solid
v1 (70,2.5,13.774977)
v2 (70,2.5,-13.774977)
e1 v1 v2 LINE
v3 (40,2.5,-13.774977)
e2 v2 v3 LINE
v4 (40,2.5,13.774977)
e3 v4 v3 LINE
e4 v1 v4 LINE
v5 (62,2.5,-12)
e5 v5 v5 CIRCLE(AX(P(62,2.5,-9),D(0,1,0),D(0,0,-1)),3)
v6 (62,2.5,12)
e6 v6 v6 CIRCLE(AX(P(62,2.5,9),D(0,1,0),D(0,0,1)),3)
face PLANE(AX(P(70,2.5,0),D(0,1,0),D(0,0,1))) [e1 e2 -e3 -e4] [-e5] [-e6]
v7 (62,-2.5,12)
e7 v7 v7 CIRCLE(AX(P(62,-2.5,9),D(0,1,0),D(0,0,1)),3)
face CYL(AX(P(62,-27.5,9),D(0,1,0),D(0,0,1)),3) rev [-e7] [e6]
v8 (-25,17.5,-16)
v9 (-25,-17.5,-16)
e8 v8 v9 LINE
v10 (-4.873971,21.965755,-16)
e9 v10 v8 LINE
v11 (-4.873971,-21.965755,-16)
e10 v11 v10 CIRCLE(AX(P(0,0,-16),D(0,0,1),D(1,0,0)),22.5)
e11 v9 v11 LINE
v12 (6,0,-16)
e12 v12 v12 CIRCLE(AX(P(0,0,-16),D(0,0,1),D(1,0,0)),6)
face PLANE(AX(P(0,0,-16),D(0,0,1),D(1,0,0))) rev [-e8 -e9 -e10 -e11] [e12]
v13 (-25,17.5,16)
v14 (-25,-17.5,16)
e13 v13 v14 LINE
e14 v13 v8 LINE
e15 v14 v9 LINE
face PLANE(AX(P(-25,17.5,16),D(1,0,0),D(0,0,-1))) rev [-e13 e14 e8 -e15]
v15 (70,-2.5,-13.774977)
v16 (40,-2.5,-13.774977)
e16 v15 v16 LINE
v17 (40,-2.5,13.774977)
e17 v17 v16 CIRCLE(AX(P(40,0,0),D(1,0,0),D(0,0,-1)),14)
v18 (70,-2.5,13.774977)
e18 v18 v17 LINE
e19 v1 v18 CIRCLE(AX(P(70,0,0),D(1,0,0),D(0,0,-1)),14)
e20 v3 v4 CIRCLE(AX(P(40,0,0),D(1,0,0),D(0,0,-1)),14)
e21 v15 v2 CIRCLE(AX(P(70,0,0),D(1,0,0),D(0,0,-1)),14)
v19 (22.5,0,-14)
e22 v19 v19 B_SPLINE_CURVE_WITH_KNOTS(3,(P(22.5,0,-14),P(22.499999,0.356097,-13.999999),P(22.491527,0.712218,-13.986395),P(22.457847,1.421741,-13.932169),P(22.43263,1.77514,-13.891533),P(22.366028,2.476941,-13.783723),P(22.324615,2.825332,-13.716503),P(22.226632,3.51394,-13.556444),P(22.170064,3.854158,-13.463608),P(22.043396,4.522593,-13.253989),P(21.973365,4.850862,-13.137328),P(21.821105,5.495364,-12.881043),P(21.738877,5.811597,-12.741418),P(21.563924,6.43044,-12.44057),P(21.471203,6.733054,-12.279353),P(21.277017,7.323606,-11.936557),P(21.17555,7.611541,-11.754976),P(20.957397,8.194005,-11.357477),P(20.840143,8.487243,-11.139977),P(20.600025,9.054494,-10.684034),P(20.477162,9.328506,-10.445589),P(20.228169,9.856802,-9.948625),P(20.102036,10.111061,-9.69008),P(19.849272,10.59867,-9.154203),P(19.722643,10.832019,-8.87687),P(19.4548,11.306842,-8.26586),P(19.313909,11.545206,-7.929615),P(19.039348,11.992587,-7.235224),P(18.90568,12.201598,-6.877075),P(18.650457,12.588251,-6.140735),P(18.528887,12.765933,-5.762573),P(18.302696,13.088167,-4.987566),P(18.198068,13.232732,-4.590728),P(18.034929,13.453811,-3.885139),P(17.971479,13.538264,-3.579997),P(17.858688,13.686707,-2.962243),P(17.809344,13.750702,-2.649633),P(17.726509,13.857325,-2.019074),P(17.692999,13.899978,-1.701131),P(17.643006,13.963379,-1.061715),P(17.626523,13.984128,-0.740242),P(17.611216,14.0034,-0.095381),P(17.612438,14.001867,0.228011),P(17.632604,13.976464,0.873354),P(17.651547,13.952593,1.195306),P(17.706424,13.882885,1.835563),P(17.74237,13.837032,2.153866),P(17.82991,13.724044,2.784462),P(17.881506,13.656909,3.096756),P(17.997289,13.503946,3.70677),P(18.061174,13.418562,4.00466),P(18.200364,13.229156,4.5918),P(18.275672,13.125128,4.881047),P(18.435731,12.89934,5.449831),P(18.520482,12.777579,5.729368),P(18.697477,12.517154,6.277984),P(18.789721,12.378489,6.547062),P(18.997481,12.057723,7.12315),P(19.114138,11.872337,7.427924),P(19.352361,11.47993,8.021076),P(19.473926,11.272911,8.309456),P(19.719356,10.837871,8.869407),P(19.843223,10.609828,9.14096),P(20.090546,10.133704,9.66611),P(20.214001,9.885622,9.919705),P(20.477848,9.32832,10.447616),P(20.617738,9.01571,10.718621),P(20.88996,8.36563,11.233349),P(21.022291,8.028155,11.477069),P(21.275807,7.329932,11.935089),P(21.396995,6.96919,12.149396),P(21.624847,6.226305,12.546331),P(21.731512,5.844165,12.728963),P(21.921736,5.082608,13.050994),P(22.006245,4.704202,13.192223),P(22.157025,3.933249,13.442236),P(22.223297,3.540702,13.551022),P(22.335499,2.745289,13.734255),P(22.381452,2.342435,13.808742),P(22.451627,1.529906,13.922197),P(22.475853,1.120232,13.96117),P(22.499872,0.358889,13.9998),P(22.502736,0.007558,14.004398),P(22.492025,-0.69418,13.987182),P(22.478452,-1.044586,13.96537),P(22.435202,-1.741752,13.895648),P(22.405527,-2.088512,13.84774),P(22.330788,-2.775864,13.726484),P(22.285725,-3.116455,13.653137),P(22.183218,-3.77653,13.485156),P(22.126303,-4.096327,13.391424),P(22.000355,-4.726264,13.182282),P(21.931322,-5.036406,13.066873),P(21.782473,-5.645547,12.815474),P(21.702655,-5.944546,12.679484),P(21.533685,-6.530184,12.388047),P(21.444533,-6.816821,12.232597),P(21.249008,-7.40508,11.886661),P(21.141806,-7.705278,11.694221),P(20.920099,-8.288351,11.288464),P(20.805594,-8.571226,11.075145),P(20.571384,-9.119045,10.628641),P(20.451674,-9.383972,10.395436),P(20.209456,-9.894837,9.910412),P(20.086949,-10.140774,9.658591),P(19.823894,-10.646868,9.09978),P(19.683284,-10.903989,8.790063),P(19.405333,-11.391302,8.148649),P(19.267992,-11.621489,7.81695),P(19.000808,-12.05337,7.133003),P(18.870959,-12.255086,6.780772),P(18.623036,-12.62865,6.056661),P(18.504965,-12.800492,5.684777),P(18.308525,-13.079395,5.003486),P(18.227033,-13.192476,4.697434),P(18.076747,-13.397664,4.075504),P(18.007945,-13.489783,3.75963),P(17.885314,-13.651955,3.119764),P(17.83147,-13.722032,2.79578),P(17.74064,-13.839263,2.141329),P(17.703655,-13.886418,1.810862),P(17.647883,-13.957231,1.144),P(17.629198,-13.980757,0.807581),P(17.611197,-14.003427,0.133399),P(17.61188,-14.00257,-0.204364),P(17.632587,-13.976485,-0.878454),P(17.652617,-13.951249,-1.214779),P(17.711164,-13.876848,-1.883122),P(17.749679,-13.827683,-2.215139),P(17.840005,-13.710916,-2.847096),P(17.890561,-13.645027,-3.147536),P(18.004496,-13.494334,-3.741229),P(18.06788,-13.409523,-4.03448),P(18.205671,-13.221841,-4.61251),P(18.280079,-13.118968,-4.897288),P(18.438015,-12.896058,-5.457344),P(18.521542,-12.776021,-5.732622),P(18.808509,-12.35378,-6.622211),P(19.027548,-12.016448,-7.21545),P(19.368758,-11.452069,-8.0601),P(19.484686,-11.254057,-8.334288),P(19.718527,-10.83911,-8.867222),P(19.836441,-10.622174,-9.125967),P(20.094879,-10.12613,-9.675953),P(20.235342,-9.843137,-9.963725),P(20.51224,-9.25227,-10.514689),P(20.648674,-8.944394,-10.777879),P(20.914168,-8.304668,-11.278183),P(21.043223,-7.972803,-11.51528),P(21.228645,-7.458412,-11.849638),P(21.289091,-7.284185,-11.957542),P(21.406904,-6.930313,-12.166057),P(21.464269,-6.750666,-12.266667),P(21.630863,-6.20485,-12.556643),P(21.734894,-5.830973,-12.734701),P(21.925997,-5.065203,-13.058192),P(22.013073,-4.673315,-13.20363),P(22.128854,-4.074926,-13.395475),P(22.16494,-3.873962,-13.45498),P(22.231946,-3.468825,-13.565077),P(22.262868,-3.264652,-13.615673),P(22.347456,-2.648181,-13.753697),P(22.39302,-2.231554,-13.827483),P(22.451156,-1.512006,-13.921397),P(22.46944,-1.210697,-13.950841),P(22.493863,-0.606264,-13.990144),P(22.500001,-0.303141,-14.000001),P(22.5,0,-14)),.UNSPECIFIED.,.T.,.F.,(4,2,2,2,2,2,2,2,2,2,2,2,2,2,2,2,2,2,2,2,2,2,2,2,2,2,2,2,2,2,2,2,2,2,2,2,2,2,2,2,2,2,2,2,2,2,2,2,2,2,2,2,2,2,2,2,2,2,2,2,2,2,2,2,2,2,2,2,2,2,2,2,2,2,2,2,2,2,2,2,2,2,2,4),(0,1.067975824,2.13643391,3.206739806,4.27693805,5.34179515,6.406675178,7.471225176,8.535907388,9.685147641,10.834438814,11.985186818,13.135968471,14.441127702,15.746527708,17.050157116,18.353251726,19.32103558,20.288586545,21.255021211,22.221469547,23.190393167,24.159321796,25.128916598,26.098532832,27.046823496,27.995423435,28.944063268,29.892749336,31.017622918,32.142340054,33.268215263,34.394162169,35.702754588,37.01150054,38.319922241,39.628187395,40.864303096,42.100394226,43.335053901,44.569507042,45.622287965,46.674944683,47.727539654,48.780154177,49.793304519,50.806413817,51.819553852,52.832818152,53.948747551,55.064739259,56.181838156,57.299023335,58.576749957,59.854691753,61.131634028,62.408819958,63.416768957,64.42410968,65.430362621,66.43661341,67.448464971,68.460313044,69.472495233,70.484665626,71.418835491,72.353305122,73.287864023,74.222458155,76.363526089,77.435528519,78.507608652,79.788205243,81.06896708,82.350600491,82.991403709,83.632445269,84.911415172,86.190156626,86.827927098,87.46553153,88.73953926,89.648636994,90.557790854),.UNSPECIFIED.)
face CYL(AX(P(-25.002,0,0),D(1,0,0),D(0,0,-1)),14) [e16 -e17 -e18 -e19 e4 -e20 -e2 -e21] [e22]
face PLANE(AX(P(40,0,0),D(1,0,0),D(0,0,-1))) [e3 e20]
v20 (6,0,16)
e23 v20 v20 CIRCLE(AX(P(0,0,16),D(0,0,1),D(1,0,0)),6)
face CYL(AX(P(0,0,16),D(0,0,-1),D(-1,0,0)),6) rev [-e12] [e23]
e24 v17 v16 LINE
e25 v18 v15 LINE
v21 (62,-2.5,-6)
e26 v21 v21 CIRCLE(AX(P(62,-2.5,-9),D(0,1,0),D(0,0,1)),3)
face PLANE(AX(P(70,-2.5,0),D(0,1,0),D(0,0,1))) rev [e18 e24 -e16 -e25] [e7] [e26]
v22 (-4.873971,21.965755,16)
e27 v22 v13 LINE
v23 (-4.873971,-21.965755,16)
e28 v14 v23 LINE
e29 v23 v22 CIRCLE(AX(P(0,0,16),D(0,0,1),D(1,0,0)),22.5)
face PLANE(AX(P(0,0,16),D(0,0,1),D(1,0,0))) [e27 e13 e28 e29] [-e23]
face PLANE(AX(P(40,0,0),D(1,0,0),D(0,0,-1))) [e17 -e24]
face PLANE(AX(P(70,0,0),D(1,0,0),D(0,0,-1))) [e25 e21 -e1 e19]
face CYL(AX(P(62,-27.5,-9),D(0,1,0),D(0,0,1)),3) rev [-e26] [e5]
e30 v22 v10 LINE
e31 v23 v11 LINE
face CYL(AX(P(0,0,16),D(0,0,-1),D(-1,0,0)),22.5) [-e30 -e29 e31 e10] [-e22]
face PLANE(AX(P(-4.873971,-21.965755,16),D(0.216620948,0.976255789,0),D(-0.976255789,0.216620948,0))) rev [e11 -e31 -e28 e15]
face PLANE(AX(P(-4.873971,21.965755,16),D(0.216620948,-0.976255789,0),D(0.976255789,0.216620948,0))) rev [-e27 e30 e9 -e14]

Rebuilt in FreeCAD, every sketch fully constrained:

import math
import FreeCAD as App
import Part
import Sketcher

V = App.Vector
Q = App.Units.Quantity

doc = App.newDocument("Part")
body = doc.addObject("PartDesign::Body", "Body")

# Sketch on XY plane
sketch1 = body.newObject("Sketcher::SketchObject", "Sketch")
sketch1.AttachmentSupport = (doc.getObject("XY_Plane"), [""])
sketch1.MapMode = "FlatFace"
sketch1.addGeometry(Part.LineSegment(V(-25, 18, 0), V(-25, -18, 0)), False)
sketch1.addGeometry(Part.LineSegment(V(-25, -18, 0), V(-5, -22, 0)), False)
sketch1.addGeometry(Part.ArcOfCircle(Part.Circle(V(0, 0, 0), V(0, 0, 1), 22), math.radians(-103), math.radians(103)), False)
sketch1.addGeometry(Part.LineSegment(V(-5, 22, 0), V(-25, 18, 0)), False)
sketch1.addGeometry(Part.Circle(V(0, 0, 0), V(0, 0, 1), 6), False)
sketch1.addConstraint(Sketcher.Constraint("Coincident", 0, 2, 1, 1))
sketch1.addConstraint(Sketcher.Constraint("Tangent", 1, 2, 2, 1))
sketch1.addConstraint(Sketcher.Constraint("Tangent", 2, 2, 3, 1))
sketch1.addConstraint(Sketcher.Constraint("Coincident", 3, 2, 0, 1))
sketch1.addConstraint(Sketcher.Constraint("Vertical", 0))
sketch1.addConstraint(Sketcher.Constraint("Coincident", 2, 3, -1, 1))
sketch1.addConstraint(Sketcher.Constraint("Coincident", 4, 3, -1, 1))
sketch1.addConstraint(Sketcher.Constraint("Vertical", 1, 2, 2, 2))
sketch1.addConstraint(Sketcher.Constraint("Diameter", 4, Q("12 mm")))
sketch1.addConstraint(Sketcher.Constraint("Radius", 2, Q("22.5 mm")))
sketch1.addConstraint(Sketcher.Constraint("DistanceY", 0, 2, 0, 1, Q("35 mm")))
sketch1.addConstraint(Sketcher.Constraint("DistanceX", 0, 2, -1, 1, Q("25 mm")))
pad1 = body.newObject("PartDesign::Pad", "Pad")
pad1.Profile = sketch1
pad1.Length = 32
pad1.Midplane = True

# Sketch on YZ plane
sketch2 = body.newObject("Sketcher::SketchObject", "Sketch001")
sketch2.AttachmentSupport = (doc.getObject("YZ_Plane"), [""])
sketch2.MapMode = "FlatFace"
sketch2.AttachmentOffset = App.Placement(V(0, 0, 40), App.Rotation())
sketch2.addGeometry(Part.Circle(V(0, 0, 0), V(0, 0, 1), 14), False)
sketch2.addConstraint(Sketcher.Constraint("Coincident", 0, 3, -1, 1))
sketch2.addConstraint(Sketcher.Constraint("Diameter", 0, Q("28 mm")))
pad2 = body.newObject("PartDesign::Pad", "Pad001")
pad2.Profile = sketch2
pad2.Type = "UpToFirst"
pad2.Reversed = True

# Sketch on YZ plane
sketch3 = body.newObject("Sketcher::SketchObject", "Sketch002")
sketch3.AttachmentSupport = (doc.getObject("YZ_Plane"), [""])
sketch3.MapMode = "FlatFace"
sketch3.AttachmentOffset = App.Placement(V(0, 0, 40), App.Rotation())
sketch3.addGeometry(Part.ArcOfCircle(Part.Circle(V(0, 0, 0), V(0, 0, 1), 14), math.radians(80), math.radians(100)), False)
sketch3.addGeometry(Part.LineSegment(V(-2.5, 13.8, 0), V(-2.5, -13.8, 0)), False)
sketch3.addGeometry(Part.ArcOfCircle(Part.Circle(V(0, 0, 0), V(0, 0, 1), 14), math.radians(-100.29), math.radians(-90)), False)
sketch3.addGeometry(Part.ArcOfCircle(Part.Circle(V(0, 0, 0), V(0, 0, 1), 14), math.radians(-90), math.radians(-79.71)), False)
sketch3.addGeometry(Part.LineSegment(V(2.5, -13.8, 0), V(2.5, 13.8, 0)), False)
sketch3.addConstraint(Sketcher.Constraint("Coincident", 0, 2, 1, 1))
sketch3.addConstraint(Sketcher.Constraint("Coincident", 1, 2, 2, 1))
sketch3.addConstraint(Sketcher.Constraint("Tangent", 2, 2, 3, 1))
sketch3.addConstraint(Sketcher.Constraint("Coincident", 3, 2, 4, 1))
sketch3.addConstraint(Sketcher.Constraint("Coincident", 4, 2, 0, 1))
sketch3.addConstraint(Sketcher.Constraint("Vertical", 1))
sketch3.addConstraint(Sketcher.Constraint("Vertical", 4))
sketch3.addConstraint(Sketcher.Constraint("Coincident", 0, 3, -1, 1))
sketch3.addConstraint(Sketcher.Constraint("Coincident", 2, 3, -1, 1))
sketch3.addConstraint(Sketcher.Constraint("Equal", 0, 2))
sketch3.addConstraint(Sketcher.Constraint("Equal", 2, 3))
sketch3.addConstraint(Sketcher.Constraint("PointOnObject", 2, 2, -2))
sketch3.addConstraint(Sketcher.Constraint("Horizontal", 1, 2, 3, 2))
sketch3.addConstraint(Sketcher.Constraint("Radius", 0, Q("14 mm")))
sketch3.addConstraint(Sketcher.Constraint("DistanceX", 1, 2, 3, 2, Q("5 mm")))
pad3 = body.newObject("PartDesign::Pad", "Pad002")
pad3.Profile = sketch3
pad3.Length = 30

# Sketch on XZ plane
sketch4 = body.newObject("Sketcher::SketchObject", "Sketch003")
sketch4.AttachmentSupport = (doc.getObject("XZ_Plane"), [""])
sketch4.MapMode = "FlatFace"
sketch4.AttachmentOffset = App.Placement(V(0, 0, -2.5), App.Rotation())
sketch4.addGeometry(Part.Circle(V(62, 9, 0), V(0, 0, 1), 3), False)
sketch4.addGeometry(Part.Circle(V(62, -9, 0), V(0, 0, 1), 3), False)
sketch4.addConstraint(Sketcher.Constraint("Equal", 0, 1))
sketch4.addConstraint(Sketcher.Constraint("Symmetric", 0, 3, 1, 3, -1))
sketch4.addConstraint(Sketcher.Constraint("Diameter", 0, Q("6 mm")))
sketch4.addConstraint(Sketcher.Constraint("DistanceX", -1, 1, 0, 3, Q("62 mm")))
sketch4.addConstraint(Sketcher.Constraint("DistanceY", -1, 1, 0, 3, Q("9 mm")))
pocket1 = body.newObject("PartDesign::Pocket", "Pocket")
pocket1.Profile = sketch4
pocket1.Length = 30
pocket1.Reversed = True

doc.recompute()
